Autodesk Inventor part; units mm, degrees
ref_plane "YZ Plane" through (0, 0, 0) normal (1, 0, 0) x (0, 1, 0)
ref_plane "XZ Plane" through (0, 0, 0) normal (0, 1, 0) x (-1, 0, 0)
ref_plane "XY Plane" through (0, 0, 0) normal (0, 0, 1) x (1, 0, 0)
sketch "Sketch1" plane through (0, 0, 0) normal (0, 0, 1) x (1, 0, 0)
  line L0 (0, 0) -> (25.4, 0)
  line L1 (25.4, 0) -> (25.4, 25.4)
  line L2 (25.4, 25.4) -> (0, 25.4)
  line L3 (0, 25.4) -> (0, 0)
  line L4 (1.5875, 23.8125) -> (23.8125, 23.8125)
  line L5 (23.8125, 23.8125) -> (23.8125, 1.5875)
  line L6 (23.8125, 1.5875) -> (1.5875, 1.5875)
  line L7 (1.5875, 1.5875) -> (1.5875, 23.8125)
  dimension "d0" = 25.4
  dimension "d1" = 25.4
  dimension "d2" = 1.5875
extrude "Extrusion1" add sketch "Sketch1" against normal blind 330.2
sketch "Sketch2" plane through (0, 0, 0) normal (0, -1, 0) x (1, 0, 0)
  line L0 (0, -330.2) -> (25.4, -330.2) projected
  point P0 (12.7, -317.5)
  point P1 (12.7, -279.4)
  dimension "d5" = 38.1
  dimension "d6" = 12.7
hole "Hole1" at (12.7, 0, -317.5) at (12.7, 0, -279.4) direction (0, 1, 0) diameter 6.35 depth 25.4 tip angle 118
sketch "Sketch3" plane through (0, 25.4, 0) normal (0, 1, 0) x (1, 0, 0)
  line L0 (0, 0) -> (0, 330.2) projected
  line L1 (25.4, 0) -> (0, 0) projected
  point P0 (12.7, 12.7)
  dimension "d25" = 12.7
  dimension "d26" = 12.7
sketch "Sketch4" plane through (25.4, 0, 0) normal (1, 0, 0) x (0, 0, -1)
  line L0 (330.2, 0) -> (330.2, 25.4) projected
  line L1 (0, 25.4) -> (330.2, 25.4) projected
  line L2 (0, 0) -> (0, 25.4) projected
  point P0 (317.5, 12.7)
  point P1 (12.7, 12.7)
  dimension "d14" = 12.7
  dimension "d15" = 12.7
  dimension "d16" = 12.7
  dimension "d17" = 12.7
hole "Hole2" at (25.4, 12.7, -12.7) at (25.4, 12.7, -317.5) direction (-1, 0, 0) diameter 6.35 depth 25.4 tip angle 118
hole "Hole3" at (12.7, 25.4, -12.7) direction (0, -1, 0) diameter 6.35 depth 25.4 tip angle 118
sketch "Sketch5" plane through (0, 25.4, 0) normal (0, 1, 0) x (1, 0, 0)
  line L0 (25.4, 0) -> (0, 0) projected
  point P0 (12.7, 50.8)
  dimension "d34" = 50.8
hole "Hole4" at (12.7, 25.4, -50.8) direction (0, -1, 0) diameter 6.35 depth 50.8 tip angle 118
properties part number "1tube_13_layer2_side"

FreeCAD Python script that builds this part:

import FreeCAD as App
import Part
import Sketcher
Q = App.Units.Quantity


def add_polygon(sketch, points):
    """Adds a closed chain of lines whose ends are joined by coincident constraints."""
    first, n = sketch.GeometryCount, len(points)
    for a, b in zip(points, points[1:] + points[:1]):
        sketch.addGeometry(Part.LineSegment(App.Vector(*a, 0), App.Vector(*b, 0)), False)
    for i in range(n):
        sketch.addConstraint(Sketcher.Constraint("Coincident", first + i, 2, first + (i + 1) % n, 1))

doc = App.newDocument("Part")
params = doc.addObject("Spreadsheet::Sheet", "Params")
for row, (alias, value) in enumerate([
    ("sketch1_width", "1 in"),
    ("pad1_length", "13 in"),
    ("sketch2_diameter", "0.25 in"),
    ("hole_diameter", "0.25 in"),
    ("hole_depth", "1 in"),
    ("sketch3_diameter", "0.25 in"),
    ("hole2_diameter", "0.25 in"),
    ("hole2_depth", "1 in"),
    ("sketch4_diameter", "0.25 in"),
    ("hole3_diameter", "0.25 in"),
    ("hole3_depth", "1 in"),
    ("sketch5_diameter", "0.25 in"),
    ("hole4_diameter", "0.25 in"),
    ("hole4_depth", "2 in"),
], start=1):
    params.set(f"A{row}", alias)
    params.set(f"B{row}", "=" + value)
    params.setAlias(f"B{row}", alias)

body = doc.addObject("PartDesign::Body", "Body")

sketch1 = body.newObject("Sketcher::SketchObject", "Sketch")
sketch1.AttachmentSupport = (doc.getObject("XY_Plane"), [""])
sketch1.MapMode = "FlatFace"
add_polygon(sketch1, [(0, 25), (0, 0), (25, 0), (25, 25)])
add_polygon(sketch1, [(2, 2), (2, 24), (24, 24), (24, 2)])
sketch1.addConstraint(Sketcher.Constraint("Vertical", 0))
sketch1.addConstraint(Sketcher.Constraint("Horizontal", 1))
sketch1.addConstraint(Sketcher.Constraint("Vertical", 2))
sketch1.addConstraint(Sketcher.Constraint("Horizontal", 3))
sketch1.addConstraint(Sketcher.Constraint("Vertical", 4))
sketch1.addConstraint(Sketcher.Constraint("Horizontal", 5))
sketch1.addConstraint(Sketcher.Constraint("Vertical", 6))
sketch1.addConstraint(Sketcher.Constraint("Horizontal", 7))
sketch1.addConstraint(Sketcher.Constraint("Coincident", 0, 2, -1, 1))
sketch1.addConstraint(Sketcher.Constraint("Equal", 3, 0))
sketch1.addConstraint(Sketcher.Constraint("Equal", 7, 4))
sketch1.addConstraint(Sketcher.Constraint("DistanceX", 1, 1, 1, 2, Q("1 in")))
sketch1.addConstraint(Sketcher.Constraint("DistanceX", -1, 1, 4, 2, Q("0.0625 in")))
sketch1.addConstraint(Sketcher.Constraint("DistanceY", -1, 1, 6, 2, Q("0.0625 in")))
sketch1.addConstraint(Sketcher.Constraint("DistanceY", 4, 2, 3, 2, Q("0.0625 in")))
sketch1.setExpression("Constraints[19]", "Params.sketch1_width")
pad1 = body.newObject("PartDesign::Pad", "Pad")
pad1.Profile = sketch1
pad1.setExpression("Length", "Params.pad1_length")
pad1.Reversed = True

sketch2 = body.newObject("Sketcher::SketchObject", "Sketch001")
sketch2.AttachmentSupport = (doc.getObject("XZ_Plane"), [""])
sketch2.MapMode = "FlatFace"
sketch2.addGeometry(Part.Circle(App.Vector(12.7, -317.5, 0), App.Vector(0, 0, 1), 3.2), False)
sketch2.addGeometry(Part.Circle(App.Vector(12.7, -279.4, 0), App.Vector(0, 0, 1), 3.2), False)
sketch2.addConstraint(Sketcher.Constraint("Equal", 0, 1))
sketch2.addConstraint(Sketcher.Constraint("Vertical", 0, 3, 1, 3))
sketch2.addConstraint(Sketcher.Constraint("Diameter", 0, Q("0.25 in")))
sketch2.addConstraint(Sketcher.Constraint("DistanceY", 1, 3, -1, 1, Q("11 in")))
sketch2.addConstraint(Sketcher.Constraint("DistanceX", -1, 1, 0, 3, Q("0.5 in")))
sketch2.addConstraint(Sketcher.Constraint("DistanceY", 0, 3, -1, 1, Q("12.5 in")))
sketch2.setExpression("Constraints[2]", "Params.sketch2_diameter")
doc.recompute()
hole = body.newObject("PartDesign::Hole", "Hole")
hole.Profile = sketch2
hole.ThreadType = "None"
hole.setExpression("Diameter", "Params.hole_diameter")
hole.DepthType = "Dimension"
hole.setExpression("Depth", "Params.hole_depth")
hole.DrillPoint = "Angled"
hole.DrillPointAngle = 118

sketch3 = body.newObject("Sketcher::SketchObject", "Sketch002")
sketch3.AttachmentSupport = (doc.getObject("YZ_Plane"), [""])
sketch3.MapMode = "FlatFace"
sketch3.AttachmentOffset = App.Placement(App.Vector(0, 0, 1 * 25.4), App.Rotation())
sketch3.addGeometry(Part.Circle(App.Vector(12.7, -12.7, 0), App.Vector(0, 0, 1), 3.2), False)
sketch3.addGeometry(Part.Circle(App.Vector(12.7, -317.5, 0), App.Vector(0, 0, 1), 3.2), False)
sketch3.addConstraint(Sketcher.Constraint("Equal", 0, 1))
sketch3.addConstraint(Sketcher.Constraint("Vertical", 0, 3, 1, 3))
sketch3.addConstraint(Sketcher.Constraint("Diameter", 0, Q("0.25 in")))
sketch3.addConstraint(Sketcher.Constraint("DistanceY", 1, 3, 0, 3, Q("12 in")))
sketch3.addConstraint(Sketcher.Constraint("DistanceX", -1, 1, 0, 3, Q("0.5 in")))
sketch3.addConstraint(Sketcher.Constraint("DistanceY", 0, 3, -1, 1, Q("0.5 in")))
sketch3.setExpression("Constraints[2]", "Params.sketch3_diameter")
doc.recompute()
hole2 = body.newObject("PartDesign::Hole", "Hole001")
hole2.Profile = sketch3
hole2.ThreadType = "None"
hole2.setExpression("Diameter", "Params.hole2_diameter")
hole2.DepthType = "Dimension"
hole2.setExpression("Depth", "Params.hole2_depth")
hole2.DrillPoint = "Angled"
hole2.DrillPointAngle = 118

sketch4 = body.newObject("Sketcher::SketchObject", "Sketch003")
sketch4.AttachmentSupport = (doc.getObject("XZ_Plane"), [""])
sketch4.MapMode = "FlatFace"
sketch4.AttachmentOffset = App.Placement(App.Vector(0, 0, -1 * 25.4), App.Rotation())
sketch4.addGeometry(Part.Circle(App.Vector(12.7, -12.7, 0), App.Vector(0, 0, 1), 3.2), False)
sketch4.addConstraint(Sketcher.Constraint("Diameter", 0, Q("0.25 in")))
sketch4.addConstraint(Sketcher.Constraint("DistanceX", -1, 1, 0, 3, Q("0.5 in")))
sketch4.addConstraint(Sketcher.Constraint("DistanceY", 0, 3, -1, 1, Q("0.5 in")))
sketch4.setExpression("Constraints[0]", "Params.sketch4_diameter")
doc.recompute()
hole3 = body.newObject("PartDesign::Hole", "Hole002")
hole3.Profile = sketch4
hole3.ThreadType = "None"
hole3.setExpression("Diameter", "Params.hole3_diameter")
hole3.DepthType = "Dimension"
hole3.setExpression("Depth", "Params.hole3_depth")
hole3.DrillPoint = "Angled"
hole3.DrillPointAngle = 118
hole3.Reversed = True

sketch5 = body.newObject("Sketcher::SketchObject", "Sketch004")
sketch5.AttachmentSupport = (doc.getObject("XZ_Plane"), [""])
sketch5.MapMode = "FlatFace"
sketch5.AttachmentOffset = App.Placement(App.Vector(0, 0, -1 * 25.4), App.Rotation())
sketch5.addGeometry(Part.Circle(App.Vector(12.7, -50.8, 0), App.Vector(0, 0, 1), 3.2), False)
sketch5.addConstraint(Sketcher.Constraint("Diameter", 0, Q("0.25 in")))
sketch5.addConstraint(Sketcher.Constraint("DistanceY", 0, 3, -1, 1, Q("2 in")))
sketch5.addConstraint(Sketcher.Constraint("DistanceX", -1, 1, 0, 3, Q("0.5 in")))
sketch5.setExpression("Constraints[0]", "Params.sketch5_diameter")
doc.recompute()
hole4 = body.newObject("PartDesign::Hole", "Hole003")
hole4.Profile = sketch5
hole4.ThreadType = "None"
hole4.setExpression("Diameter", "Params.hole4_diameter")
hole4.DepthType = "Dimension"
hole4.setExpression("Depth", "Params.hole4_depth")
hole4.DrillPoint = "Angled"
hole4.DrillPointAngle = 118
hole4.Reversed = True

doc.recompute()
